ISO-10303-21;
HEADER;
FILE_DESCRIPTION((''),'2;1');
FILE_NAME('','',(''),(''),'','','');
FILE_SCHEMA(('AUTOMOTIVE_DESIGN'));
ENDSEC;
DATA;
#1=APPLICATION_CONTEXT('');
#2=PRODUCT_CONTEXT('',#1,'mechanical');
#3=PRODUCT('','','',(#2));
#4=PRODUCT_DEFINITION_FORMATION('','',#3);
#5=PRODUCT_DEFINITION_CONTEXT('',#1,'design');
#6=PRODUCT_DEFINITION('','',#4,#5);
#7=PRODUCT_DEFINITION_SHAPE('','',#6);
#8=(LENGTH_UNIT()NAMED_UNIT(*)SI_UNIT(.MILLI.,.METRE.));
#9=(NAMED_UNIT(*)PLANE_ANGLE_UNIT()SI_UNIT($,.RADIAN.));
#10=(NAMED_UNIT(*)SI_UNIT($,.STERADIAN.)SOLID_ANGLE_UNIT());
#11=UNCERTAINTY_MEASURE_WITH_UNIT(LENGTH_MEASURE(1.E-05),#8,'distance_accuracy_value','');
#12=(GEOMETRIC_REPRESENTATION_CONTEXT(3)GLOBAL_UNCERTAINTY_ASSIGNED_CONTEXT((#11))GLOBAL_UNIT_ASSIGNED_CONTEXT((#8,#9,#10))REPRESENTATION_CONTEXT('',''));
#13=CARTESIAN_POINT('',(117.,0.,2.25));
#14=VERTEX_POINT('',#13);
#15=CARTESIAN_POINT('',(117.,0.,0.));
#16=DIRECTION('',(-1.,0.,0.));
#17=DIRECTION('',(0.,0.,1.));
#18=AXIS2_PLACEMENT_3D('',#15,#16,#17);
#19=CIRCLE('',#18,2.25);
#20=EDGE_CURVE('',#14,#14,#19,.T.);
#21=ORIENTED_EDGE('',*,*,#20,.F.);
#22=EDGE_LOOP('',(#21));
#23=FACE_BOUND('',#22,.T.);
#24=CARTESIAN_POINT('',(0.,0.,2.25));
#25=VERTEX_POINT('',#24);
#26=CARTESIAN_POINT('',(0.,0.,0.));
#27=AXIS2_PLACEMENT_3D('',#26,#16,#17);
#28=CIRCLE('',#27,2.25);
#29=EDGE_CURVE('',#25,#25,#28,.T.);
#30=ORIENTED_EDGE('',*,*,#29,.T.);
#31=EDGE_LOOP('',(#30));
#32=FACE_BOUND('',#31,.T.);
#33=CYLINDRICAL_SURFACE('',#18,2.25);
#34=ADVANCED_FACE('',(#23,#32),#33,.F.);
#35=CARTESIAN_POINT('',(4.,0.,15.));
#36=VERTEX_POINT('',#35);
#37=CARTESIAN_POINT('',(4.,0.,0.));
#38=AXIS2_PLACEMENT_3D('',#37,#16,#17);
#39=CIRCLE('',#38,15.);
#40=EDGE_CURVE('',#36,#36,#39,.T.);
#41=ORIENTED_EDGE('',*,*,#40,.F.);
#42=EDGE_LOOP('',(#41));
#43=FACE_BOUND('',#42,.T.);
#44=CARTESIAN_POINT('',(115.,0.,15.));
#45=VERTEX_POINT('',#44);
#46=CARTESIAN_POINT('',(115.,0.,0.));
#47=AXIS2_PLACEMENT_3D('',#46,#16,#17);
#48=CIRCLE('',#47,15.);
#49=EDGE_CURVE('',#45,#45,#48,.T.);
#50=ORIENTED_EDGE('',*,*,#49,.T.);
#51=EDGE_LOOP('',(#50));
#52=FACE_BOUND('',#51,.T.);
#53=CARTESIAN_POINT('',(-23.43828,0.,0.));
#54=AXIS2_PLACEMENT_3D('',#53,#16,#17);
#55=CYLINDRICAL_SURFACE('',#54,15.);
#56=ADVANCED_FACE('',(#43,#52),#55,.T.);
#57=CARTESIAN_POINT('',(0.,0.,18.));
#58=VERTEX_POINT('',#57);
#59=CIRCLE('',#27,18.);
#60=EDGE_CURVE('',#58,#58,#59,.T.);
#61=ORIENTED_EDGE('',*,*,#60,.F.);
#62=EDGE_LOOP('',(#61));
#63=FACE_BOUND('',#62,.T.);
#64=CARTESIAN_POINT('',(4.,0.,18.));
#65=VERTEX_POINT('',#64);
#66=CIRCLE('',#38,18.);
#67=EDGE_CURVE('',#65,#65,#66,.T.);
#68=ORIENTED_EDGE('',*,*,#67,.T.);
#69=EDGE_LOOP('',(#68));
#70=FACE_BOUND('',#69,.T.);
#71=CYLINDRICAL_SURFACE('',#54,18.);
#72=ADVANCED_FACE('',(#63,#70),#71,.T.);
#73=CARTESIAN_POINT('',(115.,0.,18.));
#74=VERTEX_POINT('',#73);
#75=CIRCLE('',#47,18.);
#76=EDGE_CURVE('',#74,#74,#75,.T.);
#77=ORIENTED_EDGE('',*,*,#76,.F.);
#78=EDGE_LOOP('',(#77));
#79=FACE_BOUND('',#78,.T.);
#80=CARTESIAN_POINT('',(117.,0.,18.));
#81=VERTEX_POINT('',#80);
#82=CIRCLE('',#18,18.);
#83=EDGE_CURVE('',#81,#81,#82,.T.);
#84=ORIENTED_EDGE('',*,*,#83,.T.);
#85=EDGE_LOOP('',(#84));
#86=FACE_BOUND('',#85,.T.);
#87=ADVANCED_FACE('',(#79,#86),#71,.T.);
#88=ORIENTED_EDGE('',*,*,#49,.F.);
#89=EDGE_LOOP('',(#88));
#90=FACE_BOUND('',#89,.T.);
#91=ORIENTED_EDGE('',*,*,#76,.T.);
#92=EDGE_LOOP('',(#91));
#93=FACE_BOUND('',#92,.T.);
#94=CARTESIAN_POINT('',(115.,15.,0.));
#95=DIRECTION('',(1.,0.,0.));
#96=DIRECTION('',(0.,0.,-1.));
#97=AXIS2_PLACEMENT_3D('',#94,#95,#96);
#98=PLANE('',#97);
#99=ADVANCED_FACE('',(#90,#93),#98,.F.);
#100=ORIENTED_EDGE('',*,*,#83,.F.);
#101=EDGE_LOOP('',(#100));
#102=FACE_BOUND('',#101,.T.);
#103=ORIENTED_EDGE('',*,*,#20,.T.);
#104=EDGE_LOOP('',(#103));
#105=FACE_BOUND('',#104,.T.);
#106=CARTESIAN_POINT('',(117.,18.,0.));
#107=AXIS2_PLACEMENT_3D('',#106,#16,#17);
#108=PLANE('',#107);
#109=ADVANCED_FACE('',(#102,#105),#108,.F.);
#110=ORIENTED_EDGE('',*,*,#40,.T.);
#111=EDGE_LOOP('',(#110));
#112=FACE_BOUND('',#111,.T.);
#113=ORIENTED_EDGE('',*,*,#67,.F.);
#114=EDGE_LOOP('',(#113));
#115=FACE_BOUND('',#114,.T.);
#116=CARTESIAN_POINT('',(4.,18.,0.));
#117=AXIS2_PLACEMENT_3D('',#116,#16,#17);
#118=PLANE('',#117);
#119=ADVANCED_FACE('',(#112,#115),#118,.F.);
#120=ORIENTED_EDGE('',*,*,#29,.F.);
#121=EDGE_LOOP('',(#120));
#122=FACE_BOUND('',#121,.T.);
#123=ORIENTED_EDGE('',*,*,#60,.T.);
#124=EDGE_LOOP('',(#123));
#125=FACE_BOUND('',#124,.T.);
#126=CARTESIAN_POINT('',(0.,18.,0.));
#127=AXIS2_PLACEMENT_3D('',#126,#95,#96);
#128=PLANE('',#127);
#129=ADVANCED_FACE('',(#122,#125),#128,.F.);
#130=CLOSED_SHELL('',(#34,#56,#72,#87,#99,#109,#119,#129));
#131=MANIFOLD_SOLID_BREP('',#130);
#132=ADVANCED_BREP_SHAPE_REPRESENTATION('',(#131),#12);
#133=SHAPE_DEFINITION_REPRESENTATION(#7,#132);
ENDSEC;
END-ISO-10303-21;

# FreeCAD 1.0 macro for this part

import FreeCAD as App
import Part
import Sketcher
Q = App.Units.Quantity

doc = App.newDocument("Part")
body = doc.addObject("PartDesign::Body", "Body")

# Sketch on XY plane
sketch1 = body.newObject("Sketcher::SketchObject", "Sketch")
sketch1.AttachmentSupport = (doc.getObject("XY_Plane"), [""])
sketch1.MapMode = "FlatFace"
sketch1.addGeometry([
    Part.LineSegment(App.Vector(4, 18, 0), App.Vector(0, 18, 0)),  # 0
    Part.LineSegment(App.Vector(0, 18, 0), App.Vector(0, 0, 0)),  # 1
    Part.LineSegment(App.Vector(0, 0, 0), App.Vector(117, 0, 0)),  # 2
    Part.LineSegment(App.Vector(117, 0, 0), App.Vector(117, 18, 0)),  # 3
    Part.LineSegment(App.Vector(117, 18, 0), App.Vector(115, 18, 0)),  # 4
    Part.LineSegment(App.Vector(115, 18, 0), App.Vector(115, 15, 0)),  # 5
    Part.LineSegment(App.Vector(115, 15, 0), App.Vector(4, 15, 0)),  # 6
    Part.LineSegment(App.Vector(4, 15, 0), App.Vector(4, 18, 0)),  # 7
], False)
sketch1.addConstraint([
    Sketcher.Constraint("Coincident", 0, 2, 1, 1),
    Sketcher.Constraint("Coincident", 1, 2, 2, 1),
    Sketcher.Constraint("Coincident", 2, 2, 3, 1),
    Sketcher.Constraint("Coincident", 3, 2, 4, 1),
    Sketcher.Constraint("Coincident", 4, 2, 5, 1),
    Sketcher.Constraint("Coincident", 5, 2, 6, 1),
    Sketcher.Constraint("Coincident", 6, 2, 7, 1),
    Sketcher.Constraint("Coincident", 7, 2, 0, 1),
    Sketcher.Constraint("Horizontal", 0),
    Sketcher.Constraint("Vertical", 1),
    Sketcher.Constraint("Horizontal", 2),
    Sketcher.Constraint("Vertical", 3),
    Sketcher.Constraint("Horizontal", 4),
    Sketcher.Constraint("Vertical", 5),
    Sketcher.Constraint("Horizontal", 6),
    Sketcher.Constraint("Vertical", 7),
    Sketcher.Constraint("Coincident", 1, 2, -1, 1),
    Sketcher.Constraint("Horizontal", 0, 2, 3, 2),
    Sketcher.Constraint("DistanceX", 0, 2, 0, 1, Q("4 mm")),
    Sketcher.Constraint("DistanceX", 2, 1, 2, 2, Q("117 mm")),
    Sketcher.Constraint("DistanceX", 4, 2, 4, 1, Q("2 mm")),
    Sketcher.Constraint("DistanceY", 1, 2, 1, 1, Q("18 mm")),
    Sketcher.Constraint("DistanceY", 5, 2, 5, 1, Q("3 mm")),
])
revolution = body.newObject("PartDesign::Revolution", "Revolution")
revolution.Profile = sketch1
revolution.ReferenceAxis = (sketch1, ["H_Axis"])
revolution.Angle = 360

# Sketch on YZ plane
sketch2 = body.newObject("Sketcher::SketchObject", "Sketch001")
sketch2.AttachmentSupport = (doc.getObject("YZ_Plane"), [""])
sketch2.MapMode = "FlatFace"
sketch2.addGeometry(Part.Circle(App.Vector(0, 0, 0), App.Vector(0, 0, 1), 2.2), False)
sketch2.addConstraint([
    Sketcher.Constraint("Coincident", 0, 3, -1, 1),
    Sketcher.Constraint("Diameter", 0, Q("4.5 mm")),
])
pocket1 = body.newObject("PartDesign::Pocket", "Pocket")
pocket1.Profile = sketch2
pocket1.Type = "ThroughAll"
pocket1.Reversed = True

doc.recompute()
